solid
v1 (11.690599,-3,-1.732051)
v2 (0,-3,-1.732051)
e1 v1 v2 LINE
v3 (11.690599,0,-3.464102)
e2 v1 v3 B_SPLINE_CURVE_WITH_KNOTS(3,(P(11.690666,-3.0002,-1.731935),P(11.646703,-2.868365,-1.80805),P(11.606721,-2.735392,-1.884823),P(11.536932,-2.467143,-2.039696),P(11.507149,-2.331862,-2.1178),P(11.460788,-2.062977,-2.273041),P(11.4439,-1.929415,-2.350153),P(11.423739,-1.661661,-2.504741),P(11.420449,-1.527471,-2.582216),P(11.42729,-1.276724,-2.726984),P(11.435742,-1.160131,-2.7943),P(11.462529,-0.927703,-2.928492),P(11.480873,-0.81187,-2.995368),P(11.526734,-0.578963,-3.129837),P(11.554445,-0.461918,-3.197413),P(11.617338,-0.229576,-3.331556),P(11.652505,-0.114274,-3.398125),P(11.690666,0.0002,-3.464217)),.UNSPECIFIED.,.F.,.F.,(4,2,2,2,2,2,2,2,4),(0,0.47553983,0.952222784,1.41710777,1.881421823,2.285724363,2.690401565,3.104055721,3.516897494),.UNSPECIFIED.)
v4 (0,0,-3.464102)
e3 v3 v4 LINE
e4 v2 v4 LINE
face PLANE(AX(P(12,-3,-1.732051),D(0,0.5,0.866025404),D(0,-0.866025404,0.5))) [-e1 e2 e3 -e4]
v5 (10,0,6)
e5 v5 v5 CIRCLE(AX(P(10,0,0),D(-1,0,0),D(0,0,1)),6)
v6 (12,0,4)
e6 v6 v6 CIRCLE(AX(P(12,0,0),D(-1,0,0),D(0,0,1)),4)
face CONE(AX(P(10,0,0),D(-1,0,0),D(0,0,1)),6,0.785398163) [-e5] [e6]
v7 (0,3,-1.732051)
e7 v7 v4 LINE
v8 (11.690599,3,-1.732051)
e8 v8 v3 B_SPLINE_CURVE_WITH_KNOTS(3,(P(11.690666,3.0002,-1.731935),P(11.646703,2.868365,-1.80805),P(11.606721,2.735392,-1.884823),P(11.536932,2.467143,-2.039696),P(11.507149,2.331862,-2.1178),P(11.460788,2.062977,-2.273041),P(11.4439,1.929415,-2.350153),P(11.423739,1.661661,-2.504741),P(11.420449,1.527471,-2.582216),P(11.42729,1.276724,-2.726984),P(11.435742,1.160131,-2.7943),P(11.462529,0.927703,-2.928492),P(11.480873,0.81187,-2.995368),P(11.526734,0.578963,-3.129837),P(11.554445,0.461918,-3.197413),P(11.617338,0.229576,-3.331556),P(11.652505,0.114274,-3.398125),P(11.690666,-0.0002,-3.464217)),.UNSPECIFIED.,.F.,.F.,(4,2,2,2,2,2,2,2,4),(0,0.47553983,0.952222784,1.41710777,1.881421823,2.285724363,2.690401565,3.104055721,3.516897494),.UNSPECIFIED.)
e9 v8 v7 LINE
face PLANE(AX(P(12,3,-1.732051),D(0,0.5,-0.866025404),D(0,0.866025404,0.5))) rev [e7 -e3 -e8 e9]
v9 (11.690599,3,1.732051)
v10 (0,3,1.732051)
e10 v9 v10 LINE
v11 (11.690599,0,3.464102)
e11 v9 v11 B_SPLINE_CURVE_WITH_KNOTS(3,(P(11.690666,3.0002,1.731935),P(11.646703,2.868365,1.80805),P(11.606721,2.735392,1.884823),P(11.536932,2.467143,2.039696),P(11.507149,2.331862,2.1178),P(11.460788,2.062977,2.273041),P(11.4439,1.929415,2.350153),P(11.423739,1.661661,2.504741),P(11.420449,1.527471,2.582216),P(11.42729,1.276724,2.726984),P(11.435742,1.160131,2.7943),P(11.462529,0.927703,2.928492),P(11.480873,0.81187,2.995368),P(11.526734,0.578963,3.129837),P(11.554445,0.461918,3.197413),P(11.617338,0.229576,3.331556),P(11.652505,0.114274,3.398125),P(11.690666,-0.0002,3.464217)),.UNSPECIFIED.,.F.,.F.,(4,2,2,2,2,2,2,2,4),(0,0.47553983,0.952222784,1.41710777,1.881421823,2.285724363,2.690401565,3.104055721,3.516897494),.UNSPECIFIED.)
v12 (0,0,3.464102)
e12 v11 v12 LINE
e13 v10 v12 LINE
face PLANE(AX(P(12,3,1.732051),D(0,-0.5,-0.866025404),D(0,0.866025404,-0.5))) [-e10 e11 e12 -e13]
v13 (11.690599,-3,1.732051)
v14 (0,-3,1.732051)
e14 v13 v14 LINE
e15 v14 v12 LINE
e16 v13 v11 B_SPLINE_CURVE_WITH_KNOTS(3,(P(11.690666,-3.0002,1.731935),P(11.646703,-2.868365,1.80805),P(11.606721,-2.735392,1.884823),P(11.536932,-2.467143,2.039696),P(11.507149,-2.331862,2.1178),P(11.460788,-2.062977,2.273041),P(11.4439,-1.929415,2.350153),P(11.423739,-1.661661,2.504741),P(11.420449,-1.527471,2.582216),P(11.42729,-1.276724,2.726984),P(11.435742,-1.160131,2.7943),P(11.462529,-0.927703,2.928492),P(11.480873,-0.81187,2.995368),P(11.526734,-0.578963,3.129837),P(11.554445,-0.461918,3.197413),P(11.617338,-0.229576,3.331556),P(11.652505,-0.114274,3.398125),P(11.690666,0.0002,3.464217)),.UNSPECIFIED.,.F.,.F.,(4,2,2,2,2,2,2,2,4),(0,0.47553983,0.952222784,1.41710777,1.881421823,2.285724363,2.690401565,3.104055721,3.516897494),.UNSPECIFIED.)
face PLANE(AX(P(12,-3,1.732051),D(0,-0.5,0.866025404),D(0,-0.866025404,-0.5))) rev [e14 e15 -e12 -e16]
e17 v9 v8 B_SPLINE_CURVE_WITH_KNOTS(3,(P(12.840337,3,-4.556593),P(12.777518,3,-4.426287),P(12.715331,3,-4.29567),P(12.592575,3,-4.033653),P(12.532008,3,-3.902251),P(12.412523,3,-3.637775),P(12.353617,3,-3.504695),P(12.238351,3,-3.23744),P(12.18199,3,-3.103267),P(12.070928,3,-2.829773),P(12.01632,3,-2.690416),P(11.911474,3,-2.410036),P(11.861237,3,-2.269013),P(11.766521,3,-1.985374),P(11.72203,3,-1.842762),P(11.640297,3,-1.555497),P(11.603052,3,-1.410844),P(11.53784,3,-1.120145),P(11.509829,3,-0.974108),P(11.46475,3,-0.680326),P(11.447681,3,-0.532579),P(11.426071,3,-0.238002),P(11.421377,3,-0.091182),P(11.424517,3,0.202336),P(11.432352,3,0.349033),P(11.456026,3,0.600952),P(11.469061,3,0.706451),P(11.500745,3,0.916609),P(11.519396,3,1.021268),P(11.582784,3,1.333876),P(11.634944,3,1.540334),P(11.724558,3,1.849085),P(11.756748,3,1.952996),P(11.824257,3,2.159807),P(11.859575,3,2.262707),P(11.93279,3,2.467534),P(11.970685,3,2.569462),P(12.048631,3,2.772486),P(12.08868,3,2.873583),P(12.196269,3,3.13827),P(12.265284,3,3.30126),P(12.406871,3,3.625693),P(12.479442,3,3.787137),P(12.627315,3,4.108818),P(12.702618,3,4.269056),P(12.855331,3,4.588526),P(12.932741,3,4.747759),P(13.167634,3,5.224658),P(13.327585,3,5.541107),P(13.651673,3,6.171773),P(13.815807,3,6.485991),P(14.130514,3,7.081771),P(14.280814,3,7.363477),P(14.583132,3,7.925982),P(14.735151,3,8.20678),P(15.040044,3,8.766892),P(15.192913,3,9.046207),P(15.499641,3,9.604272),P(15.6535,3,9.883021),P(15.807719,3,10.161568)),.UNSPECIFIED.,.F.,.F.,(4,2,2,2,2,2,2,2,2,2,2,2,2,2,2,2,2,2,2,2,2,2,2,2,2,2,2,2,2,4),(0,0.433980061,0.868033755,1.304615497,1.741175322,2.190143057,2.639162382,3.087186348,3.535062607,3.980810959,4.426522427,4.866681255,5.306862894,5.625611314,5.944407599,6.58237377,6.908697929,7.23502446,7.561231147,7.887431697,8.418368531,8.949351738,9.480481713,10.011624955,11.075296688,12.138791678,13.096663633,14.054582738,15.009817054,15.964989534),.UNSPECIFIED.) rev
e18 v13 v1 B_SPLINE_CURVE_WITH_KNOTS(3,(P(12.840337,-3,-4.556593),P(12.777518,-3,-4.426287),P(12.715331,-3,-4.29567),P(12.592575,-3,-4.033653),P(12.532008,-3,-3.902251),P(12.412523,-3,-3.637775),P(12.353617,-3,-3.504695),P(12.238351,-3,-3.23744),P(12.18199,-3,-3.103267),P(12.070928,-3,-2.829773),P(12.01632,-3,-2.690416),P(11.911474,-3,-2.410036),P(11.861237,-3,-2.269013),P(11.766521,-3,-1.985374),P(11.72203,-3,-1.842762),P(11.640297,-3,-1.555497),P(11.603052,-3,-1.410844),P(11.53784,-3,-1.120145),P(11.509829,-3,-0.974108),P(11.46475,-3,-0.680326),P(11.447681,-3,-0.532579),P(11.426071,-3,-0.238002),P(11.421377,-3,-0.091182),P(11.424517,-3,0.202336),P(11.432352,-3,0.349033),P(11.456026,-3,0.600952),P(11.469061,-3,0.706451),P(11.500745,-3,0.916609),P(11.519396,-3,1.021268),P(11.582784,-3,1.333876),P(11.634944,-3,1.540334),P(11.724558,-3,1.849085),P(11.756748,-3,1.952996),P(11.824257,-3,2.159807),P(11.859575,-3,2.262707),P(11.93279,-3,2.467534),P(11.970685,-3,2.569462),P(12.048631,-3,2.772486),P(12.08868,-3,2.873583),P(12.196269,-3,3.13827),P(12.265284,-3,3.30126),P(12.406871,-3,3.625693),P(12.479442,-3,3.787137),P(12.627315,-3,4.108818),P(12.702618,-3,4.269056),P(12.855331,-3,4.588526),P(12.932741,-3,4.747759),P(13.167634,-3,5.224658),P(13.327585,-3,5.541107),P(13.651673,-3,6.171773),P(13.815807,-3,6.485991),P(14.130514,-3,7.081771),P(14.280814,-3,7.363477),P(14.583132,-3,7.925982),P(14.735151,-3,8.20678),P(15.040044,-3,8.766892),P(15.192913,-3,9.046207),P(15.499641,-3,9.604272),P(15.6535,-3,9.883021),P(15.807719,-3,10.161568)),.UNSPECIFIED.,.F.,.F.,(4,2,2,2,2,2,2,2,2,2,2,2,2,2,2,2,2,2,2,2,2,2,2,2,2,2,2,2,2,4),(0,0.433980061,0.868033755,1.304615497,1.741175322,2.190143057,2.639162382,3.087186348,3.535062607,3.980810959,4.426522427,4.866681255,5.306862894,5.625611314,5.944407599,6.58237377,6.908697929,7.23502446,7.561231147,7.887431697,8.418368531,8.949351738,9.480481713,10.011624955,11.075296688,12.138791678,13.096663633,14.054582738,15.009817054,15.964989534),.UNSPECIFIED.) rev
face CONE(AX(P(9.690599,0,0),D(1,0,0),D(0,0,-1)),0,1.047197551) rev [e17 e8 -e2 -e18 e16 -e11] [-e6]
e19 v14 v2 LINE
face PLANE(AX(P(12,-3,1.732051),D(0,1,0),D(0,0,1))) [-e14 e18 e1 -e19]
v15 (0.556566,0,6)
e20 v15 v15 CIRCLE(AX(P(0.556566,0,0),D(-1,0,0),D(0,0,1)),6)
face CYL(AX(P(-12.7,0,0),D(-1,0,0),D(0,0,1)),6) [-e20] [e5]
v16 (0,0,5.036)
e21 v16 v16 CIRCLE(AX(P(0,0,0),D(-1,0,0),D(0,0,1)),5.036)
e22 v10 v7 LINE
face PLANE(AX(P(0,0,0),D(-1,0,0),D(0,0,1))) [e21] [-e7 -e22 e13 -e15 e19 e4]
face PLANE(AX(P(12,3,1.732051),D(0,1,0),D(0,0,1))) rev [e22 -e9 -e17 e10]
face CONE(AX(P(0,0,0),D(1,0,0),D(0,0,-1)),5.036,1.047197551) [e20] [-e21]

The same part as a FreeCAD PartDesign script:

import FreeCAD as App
import Part
import Sketcher
Q = App.Units.Quantity

doc = App.newDocument("Part")
body = doc.addObject("PartDesign::Body", "Body")

sketch1 = body.newObject("Sketcher::SketchObject", "Sketch")
sketch1.AttachmentSupport = (doc.getObject("XY_Plane"), [""])
sketch1.MapMode = "FlatFace"
sketch1.addGeometry([
    Part.LineSegment(App.Vector(0, 5, 0), App.Vector(0, 0, 0)),
    Part.LineSegment(App.Vector(0, 0, 0), App.Vector(9.7, 0, 0)),
    Part.LineSegment(App.Vector(9.7, 0, 0), App.Vector(12, 4, 0)),
    Part.LineSegment(App.Vector(12, 4, 0), App.Vector(10, 6, 0)),
    Part.LineSegment(App.Vector(10, 6, 0), App.Vector(0.6, 6, 0)),
    Part.LineSegment(App.Vector(0.6, 6, 0), App.Vector(0, 5, 0)),
], False)
sketch1.addConstraint([
    Sketcher.Constraint("Coincident", 0, 2, 1, 1),
    Sketcher.Constraint("Coincident", 1, 2, 2, 1),
    Sketcher.Constraint("Coincident", 2, 2, 3, 1),
    Sketcher.Constraint("Coincident", 3, 2, 4, 1),
    Sketcher.Constraint("Coincident", 4, 2, 5, 1),
    Sketcher.Constraint("Coincident", 5, 2, 0, 1),
    Sketcher.Constraint("Vertical", 0),
    Sketcher.Constraint("Horizontal", 1),
    Sketcher.Constraint("Horizontal", 4),
    Sketcher.Constraint("Coincident", 0, 2, -1, 1),
    Sketcher.Constraint("Parallel", 2, 5),
    Sketcher.Constraint("Angle", 2, Q("60 deg")),
    Sketcher.Constraint("Angle", 3, Q("135 deg")),
    Sketcher.Constraint("DistanceX", -1, 1, 2, 2, 12.0),
    Sketcher.Constraint("DistanceY", -1, 1, 2, 2, 4.0),
    Sketcher.Constraint("DistanceX", -1, 1, 3, 2, 10.0),
    Sketcher.Constraint("DistanceY", 0, 2, 0, 1, 5.036),
])
revolution = body.newObject("PartDesign::Revolution", "Revolution")
revolution.Profile = sketch1
revolution.ReferenceAxis = (sketch1, ["H_Axis"])
revolution.Angle = 360

sketch2 = body.newObject("Sketcher::SketchObject", "Sketch001")
sketch2.AttachmentSupport = (doc.getObject("YZ_Plane"), [""])
sketch2.MapMode = "FlatFace"
sketch2.addGeometry([
    Part.LineSegment(App.Vector(3, 1.7, 0), App.Vector(3, -1.7, 0)),
    Part.LineSegment(App.Vector(3, -1.7, 0), App.Vector(0, -3.5, 0)),
    Part.LineSegment(App.Vector(0, -3.5, 0), App.Vector(-3, -1.7, 0)),
    Part.LineSegment(App.Vector(-3, -1.7, 0), App.Vector(-3, 1.7, 0)),
    Part.LineSegment(App.Vector(-3, 1.7, 0), App.Vector(0, 3.5, 0)),
    Part.LineSegment(App.Vector(0, 3.5, 0), App.Vector(3, 1.7, 0)),
], False)
sketch2.addConstraint([
    Sketcher.Constraint("Coincident", 0, 2, 1, 1),
    Sketcher.Constraint("Coincident", 1, 2, 2, 1),
    Sketcher.Constraint("Coincident", 2, 2, 3, 1),
    Sketcher.Constraint("Coincident", 3, 2, 4, 1),
    Sketcher.Constraint("Coincident", 4, 2, 5, 1),
    Sketcher.Constraint("Coincident", 5, 2, 0, 1),
    Sketcher.Constraint("Vertical", 0),
    Sketcher.Constraint("Vertical", 3),
    Sketcher.Constraint("Symmetric", 0, 2, 3, 2, -1, 1),
    Sketcher.Constraint("Symmetric", 1, 2, 4, 2, -1, 1),
    Sketcher.Constraint("PointOnObject", 1, 2, -2),
    Sketcher.Constraint("Parallel", 2, 5),
    Sketcher.Constraint("Horizontal", 0, 2, 2, 2),
    Sketcher.Constraint("Angle", 1, Q("-150 deg")),
    Sketcher.Constraint("DistanceX", -1, 1, 0, 2, 3.0),
    Sketcher.Constraint("DistanceY", 0, 2, 0, 1, 3.464102),
])
pocket1 = body.newObject("PartDesign::Pocket", "Pocket")
pocket1.Profile = sketch2
pocket1.Type = "ThroughAll"
pocket1.Reversed = True

doc.recompute()
